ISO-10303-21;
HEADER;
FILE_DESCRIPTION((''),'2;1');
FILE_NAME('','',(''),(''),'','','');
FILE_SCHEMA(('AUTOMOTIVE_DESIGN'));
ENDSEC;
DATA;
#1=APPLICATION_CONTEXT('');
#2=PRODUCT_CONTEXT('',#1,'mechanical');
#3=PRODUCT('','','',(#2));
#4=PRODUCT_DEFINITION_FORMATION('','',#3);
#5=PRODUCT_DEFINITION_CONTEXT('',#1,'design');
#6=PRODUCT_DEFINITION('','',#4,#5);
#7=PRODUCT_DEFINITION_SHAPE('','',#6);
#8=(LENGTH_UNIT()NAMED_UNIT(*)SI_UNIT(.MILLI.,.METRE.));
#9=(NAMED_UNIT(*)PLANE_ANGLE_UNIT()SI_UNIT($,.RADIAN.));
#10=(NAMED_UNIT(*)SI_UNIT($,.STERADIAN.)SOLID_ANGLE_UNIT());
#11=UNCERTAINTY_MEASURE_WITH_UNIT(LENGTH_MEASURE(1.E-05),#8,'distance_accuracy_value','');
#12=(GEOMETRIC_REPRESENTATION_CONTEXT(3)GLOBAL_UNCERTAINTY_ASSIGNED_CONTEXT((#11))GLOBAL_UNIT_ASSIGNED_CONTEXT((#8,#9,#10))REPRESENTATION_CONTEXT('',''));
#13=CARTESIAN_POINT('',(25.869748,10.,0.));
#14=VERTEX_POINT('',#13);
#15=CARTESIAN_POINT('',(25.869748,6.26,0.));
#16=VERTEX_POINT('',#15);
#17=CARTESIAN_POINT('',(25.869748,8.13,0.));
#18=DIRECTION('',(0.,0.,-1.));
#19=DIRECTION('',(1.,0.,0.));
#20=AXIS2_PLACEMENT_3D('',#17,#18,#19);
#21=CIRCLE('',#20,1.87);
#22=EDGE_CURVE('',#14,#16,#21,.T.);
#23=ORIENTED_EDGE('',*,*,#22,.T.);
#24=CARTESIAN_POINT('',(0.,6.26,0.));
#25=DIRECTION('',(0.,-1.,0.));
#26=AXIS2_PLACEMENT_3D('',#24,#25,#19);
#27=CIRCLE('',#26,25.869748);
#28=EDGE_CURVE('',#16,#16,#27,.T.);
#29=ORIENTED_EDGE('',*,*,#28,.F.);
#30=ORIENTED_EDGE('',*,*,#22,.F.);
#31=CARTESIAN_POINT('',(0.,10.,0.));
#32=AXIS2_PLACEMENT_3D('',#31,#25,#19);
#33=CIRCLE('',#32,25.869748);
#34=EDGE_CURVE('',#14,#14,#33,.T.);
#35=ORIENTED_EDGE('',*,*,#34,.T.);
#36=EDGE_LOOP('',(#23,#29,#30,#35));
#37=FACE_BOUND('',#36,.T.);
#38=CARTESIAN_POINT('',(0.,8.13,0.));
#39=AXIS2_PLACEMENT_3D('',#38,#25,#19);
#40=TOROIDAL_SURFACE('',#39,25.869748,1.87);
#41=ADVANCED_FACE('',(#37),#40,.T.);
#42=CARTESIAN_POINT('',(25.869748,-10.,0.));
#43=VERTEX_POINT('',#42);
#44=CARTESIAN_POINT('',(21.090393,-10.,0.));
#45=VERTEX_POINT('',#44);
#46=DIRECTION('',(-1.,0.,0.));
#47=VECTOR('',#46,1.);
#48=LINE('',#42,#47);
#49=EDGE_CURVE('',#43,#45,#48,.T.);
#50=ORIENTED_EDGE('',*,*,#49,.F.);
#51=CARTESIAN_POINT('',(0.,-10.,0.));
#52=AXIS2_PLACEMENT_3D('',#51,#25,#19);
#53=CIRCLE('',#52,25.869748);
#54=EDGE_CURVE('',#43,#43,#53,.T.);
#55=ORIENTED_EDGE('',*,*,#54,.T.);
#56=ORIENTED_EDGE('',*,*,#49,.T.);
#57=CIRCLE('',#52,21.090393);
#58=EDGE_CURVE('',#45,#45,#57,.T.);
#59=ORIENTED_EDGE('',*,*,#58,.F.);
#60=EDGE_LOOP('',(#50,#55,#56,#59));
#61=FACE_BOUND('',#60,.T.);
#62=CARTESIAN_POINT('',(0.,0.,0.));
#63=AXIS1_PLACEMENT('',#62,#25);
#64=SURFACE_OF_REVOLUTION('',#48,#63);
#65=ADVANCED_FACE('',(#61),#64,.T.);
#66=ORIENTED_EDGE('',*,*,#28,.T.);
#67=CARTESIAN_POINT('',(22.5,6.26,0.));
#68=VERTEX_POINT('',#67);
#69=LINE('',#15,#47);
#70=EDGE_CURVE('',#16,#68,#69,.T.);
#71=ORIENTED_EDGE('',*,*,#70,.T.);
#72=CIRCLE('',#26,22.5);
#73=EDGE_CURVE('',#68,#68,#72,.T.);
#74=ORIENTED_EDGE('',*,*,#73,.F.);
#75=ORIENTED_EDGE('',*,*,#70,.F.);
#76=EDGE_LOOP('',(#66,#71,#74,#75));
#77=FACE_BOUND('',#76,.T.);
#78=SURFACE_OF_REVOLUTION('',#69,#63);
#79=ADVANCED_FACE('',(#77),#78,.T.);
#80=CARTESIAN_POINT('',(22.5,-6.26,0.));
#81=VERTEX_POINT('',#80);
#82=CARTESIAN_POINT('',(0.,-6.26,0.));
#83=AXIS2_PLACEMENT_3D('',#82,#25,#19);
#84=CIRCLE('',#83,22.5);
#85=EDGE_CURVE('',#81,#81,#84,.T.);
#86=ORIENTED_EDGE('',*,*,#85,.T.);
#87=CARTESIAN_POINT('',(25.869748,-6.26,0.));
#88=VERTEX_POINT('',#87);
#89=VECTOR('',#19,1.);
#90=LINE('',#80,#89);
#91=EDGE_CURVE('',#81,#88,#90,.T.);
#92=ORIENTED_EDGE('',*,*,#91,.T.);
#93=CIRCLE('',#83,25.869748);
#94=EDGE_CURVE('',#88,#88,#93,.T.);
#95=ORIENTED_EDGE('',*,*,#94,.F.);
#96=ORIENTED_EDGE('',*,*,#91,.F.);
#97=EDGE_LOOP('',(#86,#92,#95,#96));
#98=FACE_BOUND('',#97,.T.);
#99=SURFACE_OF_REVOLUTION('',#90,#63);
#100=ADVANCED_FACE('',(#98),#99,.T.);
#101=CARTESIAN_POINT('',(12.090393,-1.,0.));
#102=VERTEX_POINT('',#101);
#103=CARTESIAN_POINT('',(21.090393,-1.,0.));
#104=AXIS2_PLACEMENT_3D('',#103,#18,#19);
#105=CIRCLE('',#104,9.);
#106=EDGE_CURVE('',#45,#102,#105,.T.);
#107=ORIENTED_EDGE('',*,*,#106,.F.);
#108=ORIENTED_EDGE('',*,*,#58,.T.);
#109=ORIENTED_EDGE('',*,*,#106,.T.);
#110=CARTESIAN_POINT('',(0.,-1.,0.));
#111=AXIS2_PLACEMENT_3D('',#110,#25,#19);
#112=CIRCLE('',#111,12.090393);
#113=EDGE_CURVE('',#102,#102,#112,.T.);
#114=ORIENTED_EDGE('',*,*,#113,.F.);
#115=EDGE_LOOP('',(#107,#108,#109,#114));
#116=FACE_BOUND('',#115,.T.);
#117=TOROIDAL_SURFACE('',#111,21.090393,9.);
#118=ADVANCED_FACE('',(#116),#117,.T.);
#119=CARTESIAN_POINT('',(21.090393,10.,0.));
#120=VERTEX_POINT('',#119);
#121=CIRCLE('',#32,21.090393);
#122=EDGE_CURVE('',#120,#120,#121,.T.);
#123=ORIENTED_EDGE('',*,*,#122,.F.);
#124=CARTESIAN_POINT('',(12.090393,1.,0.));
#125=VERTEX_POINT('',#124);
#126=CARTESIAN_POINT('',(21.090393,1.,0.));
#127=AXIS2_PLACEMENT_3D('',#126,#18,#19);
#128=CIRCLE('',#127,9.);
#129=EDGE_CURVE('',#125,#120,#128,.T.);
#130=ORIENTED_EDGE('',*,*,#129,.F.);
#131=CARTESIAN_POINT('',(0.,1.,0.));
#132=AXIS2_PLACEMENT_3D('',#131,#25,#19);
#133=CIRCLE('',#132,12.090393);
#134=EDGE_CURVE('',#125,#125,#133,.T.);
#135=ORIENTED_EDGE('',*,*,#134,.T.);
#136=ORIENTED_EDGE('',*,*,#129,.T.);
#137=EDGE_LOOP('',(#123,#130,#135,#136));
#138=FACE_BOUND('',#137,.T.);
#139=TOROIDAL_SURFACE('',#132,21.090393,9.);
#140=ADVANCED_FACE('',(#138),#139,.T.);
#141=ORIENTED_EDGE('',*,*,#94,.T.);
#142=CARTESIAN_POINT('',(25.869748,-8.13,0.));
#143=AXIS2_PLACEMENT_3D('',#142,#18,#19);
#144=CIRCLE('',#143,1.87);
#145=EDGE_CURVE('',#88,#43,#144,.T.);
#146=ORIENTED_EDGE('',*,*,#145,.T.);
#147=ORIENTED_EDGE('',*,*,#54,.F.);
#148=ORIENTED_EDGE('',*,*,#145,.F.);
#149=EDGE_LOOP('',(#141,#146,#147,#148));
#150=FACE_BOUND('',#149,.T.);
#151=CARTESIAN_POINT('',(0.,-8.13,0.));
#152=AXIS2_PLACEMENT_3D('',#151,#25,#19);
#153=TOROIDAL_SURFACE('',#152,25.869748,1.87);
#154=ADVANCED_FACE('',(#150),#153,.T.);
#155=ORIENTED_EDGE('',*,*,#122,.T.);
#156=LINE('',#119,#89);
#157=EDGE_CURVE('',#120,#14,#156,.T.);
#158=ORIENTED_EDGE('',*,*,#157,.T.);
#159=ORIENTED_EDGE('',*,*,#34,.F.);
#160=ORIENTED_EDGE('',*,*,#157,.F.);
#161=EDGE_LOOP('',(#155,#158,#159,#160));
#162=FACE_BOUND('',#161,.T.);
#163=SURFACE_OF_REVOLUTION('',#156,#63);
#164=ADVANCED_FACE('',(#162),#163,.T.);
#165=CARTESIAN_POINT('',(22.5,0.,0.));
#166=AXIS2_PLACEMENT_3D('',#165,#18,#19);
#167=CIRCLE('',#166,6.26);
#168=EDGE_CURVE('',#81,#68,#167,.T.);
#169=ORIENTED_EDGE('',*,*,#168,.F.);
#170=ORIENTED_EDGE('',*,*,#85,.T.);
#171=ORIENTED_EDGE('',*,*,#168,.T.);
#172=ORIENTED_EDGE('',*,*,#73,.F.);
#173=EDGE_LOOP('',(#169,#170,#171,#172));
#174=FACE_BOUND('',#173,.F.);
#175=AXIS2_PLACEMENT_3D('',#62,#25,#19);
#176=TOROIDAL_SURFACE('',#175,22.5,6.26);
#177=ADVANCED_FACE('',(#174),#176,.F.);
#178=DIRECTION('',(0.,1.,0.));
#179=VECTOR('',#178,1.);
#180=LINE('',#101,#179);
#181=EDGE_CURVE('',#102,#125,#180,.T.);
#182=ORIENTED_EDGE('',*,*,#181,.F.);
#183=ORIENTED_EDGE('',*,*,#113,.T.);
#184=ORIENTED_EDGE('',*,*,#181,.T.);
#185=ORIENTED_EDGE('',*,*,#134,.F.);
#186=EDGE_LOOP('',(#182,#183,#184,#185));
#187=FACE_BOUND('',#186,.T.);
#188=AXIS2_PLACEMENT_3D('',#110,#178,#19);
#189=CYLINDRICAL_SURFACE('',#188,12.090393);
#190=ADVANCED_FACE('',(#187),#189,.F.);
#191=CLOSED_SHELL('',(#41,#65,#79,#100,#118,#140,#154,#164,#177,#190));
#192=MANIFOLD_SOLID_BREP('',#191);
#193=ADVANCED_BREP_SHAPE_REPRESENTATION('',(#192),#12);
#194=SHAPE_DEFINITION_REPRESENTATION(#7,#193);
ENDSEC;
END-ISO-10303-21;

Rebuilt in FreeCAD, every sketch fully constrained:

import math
import FreeCAD as App
import Part
import Sketcher
Q = App.Units.Quantity

doc = App.newDocument("Part")
body = doc.addObject("PartDesign::Body", "Body")

# Sketch on YZ plane
sketch1 = body.newObject("Sketcher::SketchObject", "Sketch")
sketch1.AttachmentSupport = (doc.getObject("YZ_Plane"), [""])
sketch1.MapMode = "FlatFace"
sketch1.addGeometry([
    Part.ArcOfCircle(Part.Circle(App.Vector(0, 22.5, 0), App.Vector(0, 0, 1), 6.3), math.radians(180), math.radians(360)),  # 0
    Part.LineSegment(App.Vector(-6.3, 22.5, 0), App.Vector(-6.3, 25.9, 0)),  # 1
    Part.ArcOfCircle(Part.Circle(App.Vector(-8.1, 25.9, 0), App.Vector(0, 0, 1), 1.9), math.radians(0), math.radians(180)),  # 2
    Part.LineSegment(App.Vector(-10, 25.9, 0), App.Vector(-10, 21.1, 0)),  # 3
    Part.ArcOfCircle(Part.Circle(App.Vector(-1, 21.1, 0), App.Vector(0, 0, 1), 9), math.radians(-180), math.radians(-90)),  # 4
    Part.LineSegment(App.Vector(-1, 12.1, 0), App.Vector(1, 12.1, 0)),  # 5
    Part.ArcOfCircle(Part.Circle(App.Vector(1, 21.1, 0), App.Vector(0, 0, 1), 9), math.radians(-90), math.radians(0)),  # 6
    Part.LineSegment(App.Vector(10, 21.1, 0), App.Vector(10, 25.9, 0)),  # 7
    Part.ArcOfCircle(Part.Circle(App.Vector(8.1, 25.9, 0), App.Vector(0, 0, 1), 1.9), math.radians(0), math.radians(180)),  # 8
    Part.LineSegment(App.Vector(6.3, 25.9, 0), App.Vector(6.3, 22.5, 0)),  # 9
], False)
sketch1.addConstraint([
    Sketcher.Constraint("Tangent", 0, 1, 1, 1),
    Sketcher.Constraint("Tangent", 1, 2, 2, 1),
    Sketcher.Constraint("Tangent", 2, 2, 3, 1),
    Sketcher.Constraint("Tangent", 3, 2, 4, 1),
    Sketcher.Constraint("Tangent", 4, 2, 5, 1),
    Sketcher.Constraint("Tangent", 5, 2, 6, 1),
    Sketcher.Constraint("Tangent", 6, 2, 7, 1),
    Sketcher.Constraint("Tangent", 7, 2, 8, 1),
    Sketcher.Constraint("Tangent", 8, 2, 9, 1),
    Sketcher.Constraint("Tangent", 9, 2, 0, 2),
    Sketcher.Constraint("Vertical", 1),
    Sketcher.Constraint("Vertical", 3),
    Sketcher.Constraint("Horizontal", 5),
    Sketcher.Constraint("Vertical", 7),
    Sketcher.Constraint("Vertical", 9),
    Sketcher.Constraint("Equal", 4, 6),
    Sketcher.Constraint("Equal", 2, 8),
    Sketcher.Constraint("Symmetric", 2, 3, 8, 3, -2),
    Sketcher.Constraint("Radius", 4, Q("9 mm")),
    Sketcher.Constraint("DistanceX", 5, 1, 5, 2, Q("2 mm")),
    Sketcher.Constraint("Radius", 0, Q("6.26 mm")),
    Sketcher.Constraint("DistanceY", -1, 1, 0, 3, Q("22.5 mm")),
    Sketcher.Constraint("DistanceY", 1, 1, 1, 2, Q("3.369748 mm")),
    Sketcher.Constraint("DistanceY", 3, 2, 3, 1, Q("4.779355 mm")),
])

# Sketch on XZ plane
sketch2 = body.newObject("Sketcher::SketchObject", "Sketch001")
sketch2.AttachmentSupport = (doc.getObject("XZ_Plane"), [""])
sketch2.MapMode = "FlatFace"
sketch2.addGeometry(Part.Circle(App.Vector(0, 0, 0), App.Vector(0, 0, 1), 22), False)
sketch2.addConstraint([
    Sketcher.Constraint("Coincident", 0, 3, -1, 1),
    Sketcher.Constraint("Diameter", 0, Q("45 mm")),
])
doc.recompute()

additivepipe = body.newObject("PartDesign::AdditivePipe", "AdditivePipe")
additivepipe.Profile = sketch1
additivepipe.Spine = (sketch2, ["Edge1"])

doc.recompute()
